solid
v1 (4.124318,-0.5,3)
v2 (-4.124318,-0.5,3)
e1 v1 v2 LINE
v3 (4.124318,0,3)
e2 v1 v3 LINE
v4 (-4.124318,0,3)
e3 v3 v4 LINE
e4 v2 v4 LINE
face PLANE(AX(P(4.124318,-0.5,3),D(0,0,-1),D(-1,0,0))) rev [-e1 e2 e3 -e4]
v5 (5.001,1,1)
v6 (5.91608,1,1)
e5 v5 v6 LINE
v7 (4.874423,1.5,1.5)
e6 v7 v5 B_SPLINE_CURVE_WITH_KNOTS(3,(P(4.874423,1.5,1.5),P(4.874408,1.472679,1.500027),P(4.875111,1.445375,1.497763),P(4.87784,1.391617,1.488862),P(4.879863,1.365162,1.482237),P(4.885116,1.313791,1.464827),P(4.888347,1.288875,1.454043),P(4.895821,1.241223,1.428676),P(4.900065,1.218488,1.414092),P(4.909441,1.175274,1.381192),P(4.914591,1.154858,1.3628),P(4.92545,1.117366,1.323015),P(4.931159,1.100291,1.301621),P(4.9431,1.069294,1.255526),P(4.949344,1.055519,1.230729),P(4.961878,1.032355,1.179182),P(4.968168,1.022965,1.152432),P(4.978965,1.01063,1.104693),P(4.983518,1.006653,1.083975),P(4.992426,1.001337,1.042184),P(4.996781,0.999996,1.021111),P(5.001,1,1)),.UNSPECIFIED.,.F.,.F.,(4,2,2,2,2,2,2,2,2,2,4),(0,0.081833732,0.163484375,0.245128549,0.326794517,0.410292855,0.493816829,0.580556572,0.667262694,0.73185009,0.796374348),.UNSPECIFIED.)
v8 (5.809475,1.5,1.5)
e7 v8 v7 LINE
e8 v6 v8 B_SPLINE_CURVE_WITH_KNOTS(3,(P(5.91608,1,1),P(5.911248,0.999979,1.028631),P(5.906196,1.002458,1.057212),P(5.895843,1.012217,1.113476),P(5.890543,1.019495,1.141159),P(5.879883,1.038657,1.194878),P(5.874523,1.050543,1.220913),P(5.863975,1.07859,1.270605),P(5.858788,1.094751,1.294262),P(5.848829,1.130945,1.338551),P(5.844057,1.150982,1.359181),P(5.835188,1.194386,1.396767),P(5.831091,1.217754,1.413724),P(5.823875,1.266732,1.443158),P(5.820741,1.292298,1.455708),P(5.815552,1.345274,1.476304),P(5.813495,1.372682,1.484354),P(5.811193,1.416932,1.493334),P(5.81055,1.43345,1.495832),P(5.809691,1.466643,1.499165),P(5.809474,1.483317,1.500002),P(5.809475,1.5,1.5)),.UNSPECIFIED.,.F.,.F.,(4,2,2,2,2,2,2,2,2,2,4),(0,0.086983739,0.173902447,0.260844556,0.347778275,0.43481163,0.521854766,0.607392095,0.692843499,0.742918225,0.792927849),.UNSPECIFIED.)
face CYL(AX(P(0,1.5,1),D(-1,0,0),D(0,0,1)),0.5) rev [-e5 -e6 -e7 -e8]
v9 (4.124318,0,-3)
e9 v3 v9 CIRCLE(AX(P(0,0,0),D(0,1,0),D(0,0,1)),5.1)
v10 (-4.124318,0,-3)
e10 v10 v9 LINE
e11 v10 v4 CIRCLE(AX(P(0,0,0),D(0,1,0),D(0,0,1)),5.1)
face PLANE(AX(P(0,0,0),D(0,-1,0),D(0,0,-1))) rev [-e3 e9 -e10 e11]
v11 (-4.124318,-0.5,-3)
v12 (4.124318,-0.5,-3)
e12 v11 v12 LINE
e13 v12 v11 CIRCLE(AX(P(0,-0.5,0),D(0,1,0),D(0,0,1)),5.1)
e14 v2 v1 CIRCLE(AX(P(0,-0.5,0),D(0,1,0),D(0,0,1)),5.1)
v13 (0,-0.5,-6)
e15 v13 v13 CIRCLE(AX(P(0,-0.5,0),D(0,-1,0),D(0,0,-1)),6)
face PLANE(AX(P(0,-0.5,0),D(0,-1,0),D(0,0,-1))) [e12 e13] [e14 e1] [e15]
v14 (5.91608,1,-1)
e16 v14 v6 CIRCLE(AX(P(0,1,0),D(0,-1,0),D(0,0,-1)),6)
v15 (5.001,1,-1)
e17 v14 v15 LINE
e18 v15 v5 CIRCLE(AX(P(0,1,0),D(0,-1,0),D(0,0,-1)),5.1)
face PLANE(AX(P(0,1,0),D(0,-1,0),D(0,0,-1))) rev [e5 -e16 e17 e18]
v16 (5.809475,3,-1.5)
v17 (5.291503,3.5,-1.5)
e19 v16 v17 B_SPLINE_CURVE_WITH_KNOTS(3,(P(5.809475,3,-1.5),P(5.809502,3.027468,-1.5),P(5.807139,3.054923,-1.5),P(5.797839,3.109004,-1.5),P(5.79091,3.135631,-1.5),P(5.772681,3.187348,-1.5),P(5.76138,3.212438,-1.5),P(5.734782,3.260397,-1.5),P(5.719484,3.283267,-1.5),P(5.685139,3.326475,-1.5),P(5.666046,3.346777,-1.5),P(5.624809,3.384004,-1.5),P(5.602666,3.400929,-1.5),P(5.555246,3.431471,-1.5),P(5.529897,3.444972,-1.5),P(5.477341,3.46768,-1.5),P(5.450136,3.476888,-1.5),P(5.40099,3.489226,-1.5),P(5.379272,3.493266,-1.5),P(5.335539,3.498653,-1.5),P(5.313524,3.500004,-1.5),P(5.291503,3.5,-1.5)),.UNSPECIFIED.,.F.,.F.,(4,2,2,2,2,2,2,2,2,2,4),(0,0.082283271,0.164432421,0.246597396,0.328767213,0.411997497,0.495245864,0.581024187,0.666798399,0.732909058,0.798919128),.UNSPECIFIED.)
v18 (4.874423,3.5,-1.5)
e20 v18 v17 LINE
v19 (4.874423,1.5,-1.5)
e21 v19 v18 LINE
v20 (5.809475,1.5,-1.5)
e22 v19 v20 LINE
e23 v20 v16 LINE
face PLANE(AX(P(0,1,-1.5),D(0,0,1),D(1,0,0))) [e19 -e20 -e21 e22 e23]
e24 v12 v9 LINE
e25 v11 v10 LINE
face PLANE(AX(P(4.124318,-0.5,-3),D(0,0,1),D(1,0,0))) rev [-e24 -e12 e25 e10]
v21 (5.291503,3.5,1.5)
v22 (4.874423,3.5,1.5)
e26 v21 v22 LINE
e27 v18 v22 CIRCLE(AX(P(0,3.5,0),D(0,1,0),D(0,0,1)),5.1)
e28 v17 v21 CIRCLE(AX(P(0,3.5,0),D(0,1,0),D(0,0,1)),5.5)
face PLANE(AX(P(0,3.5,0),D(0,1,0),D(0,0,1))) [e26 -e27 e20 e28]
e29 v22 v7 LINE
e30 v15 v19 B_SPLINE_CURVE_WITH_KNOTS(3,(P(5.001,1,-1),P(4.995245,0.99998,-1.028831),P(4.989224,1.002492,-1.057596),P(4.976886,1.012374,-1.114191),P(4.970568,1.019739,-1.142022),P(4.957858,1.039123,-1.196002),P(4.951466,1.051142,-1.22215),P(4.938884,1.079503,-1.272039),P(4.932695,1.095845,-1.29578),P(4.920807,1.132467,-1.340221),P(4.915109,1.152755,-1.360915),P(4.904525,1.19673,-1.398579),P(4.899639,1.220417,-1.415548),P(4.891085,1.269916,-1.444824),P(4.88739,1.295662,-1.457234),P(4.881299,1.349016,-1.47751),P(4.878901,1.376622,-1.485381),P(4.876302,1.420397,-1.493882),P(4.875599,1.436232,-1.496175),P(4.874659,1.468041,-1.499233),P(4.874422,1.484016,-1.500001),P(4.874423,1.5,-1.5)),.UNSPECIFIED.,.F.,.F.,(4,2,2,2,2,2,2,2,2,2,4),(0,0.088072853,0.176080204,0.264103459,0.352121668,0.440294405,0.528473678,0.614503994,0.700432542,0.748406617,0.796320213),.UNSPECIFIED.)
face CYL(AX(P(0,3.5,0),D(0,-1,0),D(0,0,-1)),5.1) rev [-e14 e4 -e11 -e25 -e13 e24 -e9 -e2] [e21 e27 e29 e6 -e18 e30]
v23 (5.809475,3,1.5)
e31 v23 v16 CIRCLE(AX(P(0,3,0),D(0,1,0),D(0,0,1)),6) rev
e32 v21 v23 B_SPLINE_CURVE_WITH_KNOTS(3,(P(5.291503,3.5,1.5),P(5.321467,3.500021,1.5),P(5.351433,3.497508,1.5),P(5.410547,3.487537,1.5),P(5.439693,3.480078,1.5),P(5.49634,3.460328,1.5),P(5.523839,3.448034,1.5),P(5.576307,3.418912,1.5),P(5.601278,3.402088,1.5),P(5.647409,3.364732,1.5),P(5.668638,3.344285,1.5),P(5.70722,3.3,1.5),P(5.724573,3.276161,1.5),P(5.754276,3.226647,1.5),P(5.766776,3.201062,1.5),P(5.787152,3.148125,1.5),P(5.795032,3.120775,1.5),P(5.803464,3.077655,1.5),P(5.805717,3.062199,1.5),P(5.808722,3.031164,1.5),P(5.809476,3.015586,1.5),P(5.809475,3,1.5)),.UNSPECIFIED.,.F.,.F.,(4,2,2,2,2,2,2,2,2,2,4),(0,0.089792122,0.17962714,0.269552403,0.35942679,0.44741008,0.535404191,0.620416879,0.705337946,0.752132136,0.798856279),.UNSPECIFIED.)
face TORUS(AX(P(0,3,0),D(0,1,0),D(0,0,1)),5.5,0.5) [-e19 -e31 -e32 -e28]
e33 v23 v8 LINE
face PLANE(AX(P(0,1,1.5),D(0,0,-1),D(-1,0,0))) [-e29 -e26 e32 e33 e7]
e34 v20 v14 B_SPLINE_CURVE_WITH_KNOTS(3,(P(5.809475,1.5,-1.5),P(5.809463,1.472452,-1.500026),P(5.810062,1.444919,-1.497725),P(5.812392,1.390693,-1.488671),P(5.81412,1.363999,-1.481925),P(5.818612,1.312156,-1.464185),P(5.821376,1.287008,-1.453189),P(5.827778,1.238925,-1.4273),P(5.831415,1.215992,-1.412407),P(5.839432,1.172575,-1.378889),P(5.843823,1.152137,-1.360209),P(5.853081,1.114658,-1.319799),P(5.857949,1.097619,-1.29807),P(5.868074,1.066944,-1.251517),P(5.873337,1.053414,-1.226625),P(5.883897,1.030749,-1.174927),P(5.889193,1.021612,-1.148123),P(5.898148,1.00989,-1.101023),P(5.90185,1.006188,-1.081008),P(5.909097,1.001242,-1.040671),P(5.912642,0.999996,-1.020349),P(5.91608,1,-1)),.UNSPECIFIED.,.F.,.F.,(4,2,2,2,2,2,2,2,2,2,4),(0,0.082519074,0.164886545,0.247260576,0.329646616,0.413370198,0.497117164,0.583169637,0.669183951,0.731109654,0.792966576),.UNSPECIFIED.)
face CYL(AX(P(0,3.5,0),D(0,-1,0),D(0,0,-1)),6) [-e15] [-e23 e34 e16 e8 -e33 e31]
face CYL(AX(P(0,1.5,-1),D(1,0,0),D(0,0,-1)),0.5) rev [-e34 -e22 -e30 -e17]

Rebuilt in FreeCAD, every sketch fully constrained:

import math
import FreeCAD as App
import Part
import Sketcher
Q = App.Units.Quantity


def edges_at(feature, points):
    """Names of the edges that pass closest to the given points."""
    edges = feature.Shape.Edges
    near = lambda p: min(range(len(edges)), key=lambda i: edges[i].distToShape(Part.Vertex(*p))[0])
    return sorted({f"Edge{near(p) + 1}" for p in points})

doc = App.newDocument("Part")
body = doc.addObject("PartDesign::Body", "Body")

sketch1 = body.newObject("Sketcher::SketchObject", "Sketch")
sketch1.AttachmentSupport = (doc.getObject("XZ_Plane"), [""])
sketch1.MapMode = "FlatFace"
sketch1.addGeometry([
    Part.Circle(App.Vector(0, 0, 0), App.Vector(0, 0, 1), 6),
    Part.Circle(App.Vector(0, 0, 0), App.Vector(0, 0, 1), 5.1),
], False)
sketch1.addConstraint([
    Sketcher.Constraint("Coincident", 0, 3, -1, 1),
    Sketcher.Constraint("Coincident", 1, 3, -1, 1),
    Sketcher.Constraint("Diameter", 0, Q("12 mm")),
    Sketcher.Constraint("Diameter", 1, Q("10.2 mm")),
])
pad1 = body.newObject("PartDesign::Pad", "Pad")
pad1.Profile = sketch1
pad1.Length = 3.5
pad1.Reversed = True

sketch2 = body.newObject("Sketcher::SketchObject", "Sketch001")
sketch2.AttachmentSupport = (doc.getObject("XZ_Plane"), [""])
sketch2.MapMode = "FlatFace"
sketch2.addGeometry(Part.Circle(App.Vector(0, 0, 0), App.Vector(0, 0, 1), 6), False)
sketch2.addConstraint([
    Sketcher.Constraint("Coincident", 0, 3, -1, 1),
    Sketcher.Constraint("Diameter", 0, Q("12 mm")),
])
pad2 = body.newObject("PartDesign::Pad", "Pad001")
pad2.Profile = sketch2
pad2.Length = 0.5

sketch3 = body.newObject("Sketcher::SketchObject", "Sketch002")
sketch3.AttachmentSupport = (doc.getObject("XZ_Plane"), [""])
sketch3.MapMode = "FlatFace"
sketch3.AttachmentOffset = App.Placement(App.Vector(0, 0, -3.5), App.Rotation())
sketch3.addGeometry([
    Part.LineSegment(App.Vector(0, 1.5, 0), App.Vector(0, -1.5, 0)),
    Part.LineSegment(App.Vector(0, -1.5, 0), App.Vector(6, -1.5, 0)),
    Part.LineSegment(App.Vector(6, -1.5, 0), App.Vector(6, 1.5, 0)),
    Part.LineSegment(App.Vector(6, 1.5, 0), App.Vector(0, 1.5, 0)),
], False)
sketch3.addConstraint([
    Sketcher.Constraint("Coincident", 0, 2, 1, 1),
    Sketcher.Constraint("Coincident", 1, 2, 2, 1),
    Sketcher.Constraint("Coincident", 2, 2, 3, 1),
    Sketcher.Constraint("Coincident", 3, 2, 0, 1),
    Sketcher.Constraint("Vertical", 0),
    Sketcher.Constraint("Horizontal", 1),
    Sketcher.Constraint("Vertical", 2),
    Sketcher.Constraint("Horizontal", 3),
    Sketcher.Constraint("Symmetric", 0, 2, 3, 2, -1, 1),
    Sketcher.Constraint("DistanceX", 1, 1, 1, 2, Q("6 mm")),
    Sketcher.Constraint("DistanceY", 0, 2, 0, 1, Q("3 mm")),
])
pocket1 = body.newObject("PartDesign::Pocket", "Pocket")
pocket1.Profile = sketch3
pocket1.Length = 2.5
pocket1.Reversed = True

sketch4 = body.newObject("Sketcher::SketchObject", "Sketch003")
sketch4.AttachmentSupport = (doc.getObject("XZ_Plane"), [""])
sketch4.MapMode = "FlatFace"
sketch4.addGeometry([
    Part.LineSegment(App.Vector(4.124318, 3, 0), App.Vector(-4.124318, 3, 0)),
    Part.ArcOfCircle(Part.Circle(App.Vector(0, 0, 0), App.Vector(0, 0, 1), 5.1), math.radians(36.031879), math.radians(143.968121)),
    Part.LineSegment(App.Vector(-4.124318, -3, 0), App.Vector(4.124318, -3, 0)),
    Part.ArcOfCircle(Part.Circle(App.Vector(0, 0, 0), App.Vector(0, 0, 1), 5.1), math.radians(-143.968121), math.radians(-36.031879)),
], False)
sketch4.addConstraint([
    Sketcher.Constraint("Coincident", 0, 1, 1, 1),
    Sketcher.Constraint("Coincident", 1, 2, 0, 2),
    Sketcher.Constraint("Coincident", 2, 1, 3, 1),
    Sketcher.Constraint("Coincident", 3, 2, 2, 2),
    Sketcher.Constraint("Horizontal", 0),
    Sketcher.Constraint("Horizontal", 2),
    Sketcher.Constraint("Coincident", 1, 3, -1, 1),
    Sketcher.Constraint("Coincident", 3, 3, -1, 1),
    Sketcher.Constraint("Equal", 1, 3),
    Sketcher.Constraint("Vertical", 1, 2, 2, 1),
    Sketcher.Constraint("Radius", 1, Q("5.1 mm")),
    Sketcher.Constraint("DistanceY", -1, 1, 0, 1, Q("3 mm")),
])
pocket2 = body.newObject("PartDesign::Pocket", "Pocket001")
pocket2.Profile = sketch4
pocket2.Type = "ThroughAll"
pocket2.Reversed = True
doc.recompute()

fillet = body.newObject("PartDesign::Fillet", "Fillet")
fillet.Base = (pocket2, edges_at(pocket2, [(-6, 3.5, 0), (5.342, 1, -1.5), (5.342, 1, 1.5)]))
fillet.Radius = 0.5

doc.recompute()
